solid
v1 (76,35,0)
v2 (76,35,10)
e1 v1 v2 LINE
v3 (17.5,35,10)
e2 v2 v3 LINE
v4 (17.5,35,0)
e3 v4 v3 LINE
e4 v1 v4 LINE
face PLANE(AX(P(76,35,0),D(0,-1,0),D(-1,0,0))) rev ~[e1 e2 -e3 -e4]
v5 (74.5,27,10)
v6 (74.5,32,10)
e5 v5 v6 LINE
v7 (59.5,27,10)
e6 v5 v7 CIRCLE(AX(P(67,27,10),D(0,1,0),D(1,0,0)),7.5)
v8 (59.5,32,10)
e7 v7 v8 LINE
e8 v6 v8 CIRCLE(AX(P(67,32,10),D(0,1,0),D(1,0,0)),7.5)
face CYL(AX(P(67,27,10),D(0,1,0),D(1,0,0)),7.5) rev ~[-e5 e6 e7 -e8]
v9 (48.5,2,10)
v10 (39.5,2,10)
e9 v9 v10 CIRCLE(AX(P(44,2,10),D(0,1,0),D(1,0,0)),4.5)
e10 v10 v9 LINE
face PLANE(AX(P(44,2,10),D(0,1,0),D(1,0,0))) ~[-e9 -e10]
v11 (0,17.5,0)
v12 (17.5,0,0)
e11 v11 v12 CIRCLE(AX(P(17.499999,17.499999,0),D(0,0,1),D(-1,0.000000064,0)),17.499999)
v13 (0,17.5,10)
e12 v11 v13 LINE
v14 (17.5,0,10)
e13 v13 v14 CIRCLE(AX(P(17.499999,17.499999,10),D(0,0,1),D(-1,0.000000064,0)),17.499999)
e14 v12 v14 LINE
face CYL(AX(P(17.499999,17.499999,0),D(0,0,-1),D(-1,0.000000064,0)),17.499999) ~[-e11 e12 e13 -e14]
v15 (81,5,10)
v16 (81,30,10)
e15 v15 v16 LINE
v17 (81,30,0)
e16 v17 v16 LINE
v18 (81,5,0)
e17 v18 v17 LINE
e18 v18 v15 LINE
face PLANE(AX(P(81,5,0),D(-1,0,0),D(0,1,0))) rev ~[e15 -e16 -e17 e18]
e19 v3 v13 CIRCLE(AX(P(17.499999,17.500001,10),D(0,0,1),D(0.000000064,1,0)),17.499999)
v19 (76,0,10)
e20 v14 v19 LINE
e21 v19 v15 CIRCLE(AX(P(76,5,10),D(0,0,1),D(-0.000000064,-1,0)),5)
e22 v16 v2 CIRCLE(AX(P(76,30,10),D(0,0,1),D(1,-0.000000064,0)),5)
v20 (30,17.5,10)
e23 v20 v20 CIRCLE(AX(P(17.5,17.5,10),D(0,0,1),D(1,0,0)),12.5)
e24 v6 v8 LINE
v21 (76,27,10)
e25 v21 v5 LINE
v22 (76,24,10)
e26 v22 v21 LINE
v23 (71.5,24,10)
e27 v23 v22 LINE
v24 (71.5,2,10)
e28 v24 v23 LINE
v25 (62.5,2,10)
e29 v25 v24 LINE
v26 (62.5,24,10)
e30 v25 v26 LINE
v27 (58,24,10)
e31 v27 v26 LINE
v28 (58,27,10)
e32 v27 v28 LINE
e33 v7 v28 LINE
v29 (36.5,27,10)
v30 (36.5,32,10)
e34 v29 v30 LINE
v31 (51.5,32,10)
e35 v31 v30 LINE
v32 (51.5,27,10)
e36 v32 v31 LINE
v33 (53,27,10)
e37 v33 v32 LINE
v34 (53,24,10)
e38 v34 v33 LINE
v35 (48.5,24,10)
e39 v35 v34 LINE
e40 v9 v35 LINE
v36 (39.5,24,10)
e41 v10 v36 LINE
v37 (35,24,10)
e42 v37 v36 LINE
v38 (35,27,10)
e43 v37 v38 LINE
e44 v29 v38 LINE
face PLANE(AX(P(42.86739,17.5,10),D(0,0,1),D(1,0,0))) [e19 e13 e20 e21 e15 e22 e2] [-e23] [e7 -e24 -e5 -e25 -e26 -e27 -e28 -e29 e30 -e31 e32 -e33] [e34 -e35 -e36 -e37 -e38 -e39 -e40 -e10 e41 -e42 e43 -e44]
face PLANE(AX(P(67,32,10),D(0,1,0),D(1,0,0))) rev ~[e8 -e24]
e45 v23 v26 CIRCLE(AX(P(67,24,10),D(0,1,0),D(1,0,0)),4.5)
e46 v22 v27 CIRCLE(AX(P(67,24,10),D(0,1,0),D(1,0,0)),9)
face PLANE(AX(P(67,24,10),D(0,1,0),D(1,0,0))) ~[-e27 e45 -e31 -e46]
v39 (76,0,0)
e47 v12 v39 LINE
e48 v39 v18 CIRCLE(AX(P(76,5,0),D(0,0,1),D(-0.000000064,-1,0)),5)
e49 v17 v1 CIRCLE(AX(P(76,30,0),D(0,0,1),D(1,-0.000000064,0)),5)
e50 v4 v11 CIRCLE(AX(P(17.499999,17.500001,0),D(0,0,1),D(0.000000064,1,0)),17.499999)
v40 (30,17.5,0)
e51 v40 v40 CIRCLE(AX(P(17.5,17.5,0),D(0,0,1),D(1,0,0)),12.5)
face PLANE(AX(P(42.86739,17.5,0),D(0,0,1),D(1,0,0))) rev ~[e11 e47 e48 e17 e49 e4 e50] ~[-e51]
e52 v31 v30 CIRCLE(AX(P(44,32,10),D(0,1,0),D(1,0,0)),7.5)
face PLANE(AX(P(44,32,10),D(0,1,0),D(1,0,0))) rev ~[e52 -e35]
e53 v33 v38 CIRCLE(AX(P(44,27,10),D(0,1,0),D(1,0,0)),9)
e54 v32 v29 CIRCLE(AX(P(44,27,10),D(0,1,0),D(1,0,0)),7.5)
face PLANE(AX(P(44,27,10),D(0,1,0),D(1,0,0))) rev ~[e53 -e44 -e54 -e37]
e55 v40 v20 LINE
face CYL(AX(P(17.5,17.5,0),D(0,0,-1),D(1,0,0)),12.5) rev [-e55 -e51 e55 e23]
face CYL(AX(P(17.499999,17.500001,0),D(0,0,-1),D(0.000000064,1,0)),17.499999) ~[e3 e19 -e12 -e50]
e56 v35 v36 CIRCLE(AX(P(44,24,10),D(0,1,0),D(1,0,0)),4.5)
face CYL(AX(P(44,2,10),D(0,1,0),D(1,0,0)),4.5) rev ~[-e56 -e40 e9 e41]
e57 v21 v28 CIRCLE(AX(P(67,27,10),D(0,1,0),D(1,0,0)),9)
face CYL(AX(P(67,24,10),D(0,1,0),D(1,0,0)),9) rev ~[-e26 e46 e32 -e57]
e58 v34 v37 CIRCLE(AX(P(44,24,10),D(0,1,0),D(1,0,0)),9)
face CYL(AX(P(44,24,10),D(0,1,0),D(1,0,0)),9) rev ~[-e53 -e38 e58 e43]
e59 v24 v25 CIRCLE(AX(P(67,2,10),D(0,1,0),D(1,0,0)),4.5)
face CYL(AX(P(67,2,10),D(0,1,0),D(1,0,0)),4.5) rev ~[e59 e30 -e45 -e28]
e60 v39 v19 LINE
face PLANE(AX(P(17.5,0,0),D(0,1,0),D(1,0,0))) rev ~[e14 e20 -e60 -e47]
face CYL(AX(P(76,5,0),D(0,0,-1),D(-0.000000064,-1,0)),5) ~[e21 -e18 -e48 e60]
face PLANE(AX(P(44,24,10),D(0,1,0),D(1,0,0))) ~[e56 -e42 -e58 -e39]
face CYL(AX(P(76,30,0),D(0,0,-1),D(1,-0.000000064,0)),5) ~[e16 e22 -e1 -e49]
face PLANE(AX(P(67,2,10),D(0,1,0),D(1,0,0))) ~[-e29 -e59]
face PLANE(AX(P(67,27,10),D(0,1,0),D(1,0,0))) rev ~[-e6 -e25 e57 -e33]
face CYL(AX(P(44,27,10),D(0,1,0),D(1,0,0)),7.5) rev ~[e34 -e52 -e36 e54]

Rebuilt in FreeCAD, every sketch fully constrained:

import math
import FreeCAD as App
import Part
import Sketcher


def add_polygon(sketch, points):
    """Adds a closed chain of lines whose ends are joined by coincident constraints."""
    first, n = sketch.GeometryCount, len(points)
    for a, b in zip(points, points[1:] + points[:1]):
        sketch.addGeometry(Part.LineSegment(App.Vector(*a, 0), App.Vector(*b, 0)), False)
    for i in range(n):
        sketch.addConstraint(Sketcher.Constraint("Coincident", first + i, 2, first + (i + 1) % n, 1))

doc = App.newDocument("Part")
params = doc.addObject("Spreadsheet::Sheet", "Params")
for row, (alias, value) in enumerate([
    ("sketch1_diameter", "25 mm"),
    ("sketch1_radius", "5 mm"),
    ("sketch1_radius2", "17.499999 mm"),
    ("sketch1_width", "58.5 mm"),
    ("pad1_length", "10 mm"),
    ("sketch2_height", "22 mm"),
    ("sketch2_height2", "3 mm"),
    ("sketch2_height3", "5 mm"),
    ("sketch2_width", "4.5 mm"),
    ("sketch2_width2", "1.5 mm"),
    ("groove_angle", "360 deg"),
    ("sketch3_height", "22 mm"),
    ("sketch3_height2", "3 mm"),
    ("sketch3_height3", "5 mm"),
    ("sketch3_width", "4.5 mm"),
    ("sketch3_width2", "1.5 mm"),
    ("groove2_angle", "360 deg"),
], start=1):
    params.set(f"A{row}", alias)
    params.set(f"B{row}", "=" + value)
    params.setAlias(f"B{row}", alias)

body = doc.addObject("PartDesign::Body", "Body")

# Sketch on XY plane
sketch1 = body.newObject("Sketcher::SketchObject", "Sketch")
sketch1.AttachmentSupport = (doc.getObject("XY_Plane"), [""])
sketch1.MapMode = "FlatFace"
sketch1.addGeometry([
    Part.ArcOfCircle(Part.Circle(App.Vector(17.5, 17.5, 0), App.Vector(0, 0, 1), 17.5), math.radians(180), math.radians(270)),  # 0
    Part.LineSegment(App.Vector(17.5, 0, 0), App.Vector(76, 0, 0)),  # 1
    Part.ArcOfCircle(Part.Circle(App.Vector(76, 5, 0), App.Vector(0, 0, 1), 5), math.radians(-90), math.radians(0)),  # 2
    Part.LineSegment(App.Vector(81, 5, 0), App.Vector(81, 30, 0)),  # 3
    Part.ArcOfCircle(Part.Circle(App.Vector(76, 30, 0), App.Vector(0, 0, 1), 5), math.radians(0), math.radians(90)),  # 4
    Part.LineSegment(App.Vector(76, 35, 0), App.Vector(17.5, 35, 0)),  # 5
    Part.ArcOfCircle(Part.Circle(App.Vector(17.5, 17.5, 0), App.Vector(0, 0, 1), 17.5), math.radians(90), math.radians(180)),  # 6
    Part.Circle(App.Vector(17.5, 17.5, 0), App.Vector(0, 0, 1), 12.5),  # 7
], False)
sketch1.addConstraint([
    Sketcher.Constraint("Tangent", 0, 2, 1, 1),
    Sketcher.Constraint("Tangent", 1, 2, 2, 1),
    Sketcher.Constraint("Tangent", 2, 2, 3, 1),
    Sketcher.Constraint("Tangent", 3, 2, 4, 1),
    Sketcher.Constraint("Tangent", 4, 2, 5, 1),
    Sketcher.Constraint("Tangent", 5, 2, 6, 1),
    Sketcher.Constraint("Tangent", 6, 2, 0, 1),
    Sketcher.Constraint("Horizontal", 1),
    Sketcher.Constraint("Vertical", 3),
    Sketcher.Constraint("Horizontal", 5),
    Sketcher.Constraint("Coincident", 7, 3, 0, 3),
    Sketcher.Constraint("Equal", 2, 4),
    Sketcher.Constraint("Equal", 0, 6),
    Sketcher.Constraint("PointOnObject", 0, 2, -1),
    Sketcher.Constraint("PointOnObject", 6, 2, -2),
    Sketcher.Constraint("Horizontal", 7, 3, 6, 2),
    Sketcher.Constraint("Diameter", 7, 25.0),
    Sketcher.Constraint("Radius", 2, 5.0),
    Sketcher.Constraint("Radius", 0, 17.499999),
    Sketcher.Constraint("DistanceX", 1, 1, 1, 2, 58.5),
])
sketch1.setExpression("Constraints[16]", "Params.sketch1_diameter")
sketch1.setExpression("Constraints[17]", "Params.sketch1_radius")
sketch1.setExpression("Constraints[18]", "Params.sketch1_radius2")
sketch1.setExpression("Constraints[19]", "Params.sketch1_width")
pad1 = body.newObject("PartDesign::Pad", "Pad")
pad1.Profile = sketch1
pad1.setExpression("Length", "Params.pad1_length")

# Sketch on XY plane
sketch2 = body.newObject("Sketcher::SketchObject", "Sketch001")
sketch2.AttachmentSupport = (doc.getObject("XY_Plane"), [""])
sketch2.MapMode = "FlatFace"
sketch2.AttachmentOffset = App.Placement(App.Vector(0, 0, 10), App.Rotation())
add_polygon(sketch2, [(44, 2), (48.5, 2), (48.5, 24), (53, 24), (53, 27), (51.5, 27), (51.5, 32), (44, 32)])  # lines 0-7
sketch2.addGeometry(Part.LineSegment(App.Vector(44, 2, 0), App.Vector(44, 32, 0)), True)  # axis
sketch2.addConstraint([
    Sketcher.Constraint("Horizontal", 0),
    Sketcher.Constraint("Vertical", 1),
    Sketcher.Constraint("Horizontal", 2),
    Sketcher.Constraint("Vertical", 3),
    Sketcher.Constraint("Horizontal", 4),
    Sketcher.Constraint("Vertical", 5),
    Sketcher.Constraint("Horizontal", 6),
    Sketcher.Constraint("Vertical", 7),
    Sketcher.Constraint("Vertical", 8),
    Sketcher.Constraint("Coincident", 8, 1, 7, 2),
    Sketcher.Constraint("Horizontal", 5, 2, 8, 2),
    Sketcher.Constraint("Equal", 0, 2),
    Sketcher.Constraint("DistanceY", 1, 1, 1, 2, 22.0),
    Sketcher.Constraint("DistanceY", 3, 1, 3, 2, 3.0),
    Sketcher.Constraint("DistanceY", 5, 1, 5, 2, 5.0),
    Sketcher.Constraint("DistanceX", 0, 1, 0, 2, 4.5),
    Sketcher.Constraint("DistanceX", 4, 2, 4, 1, 1.5),
    Sketcher.Constraint("DistanceY", -1, 1, 0, 2, 2.0),
    Sketcher.Constraint("DistanceX", -1, 1, 2, 2, 53.0),
])
sketch2.setExpression("Constraints[20]", "Params.sketch2_height")
sketch2.setExpression("Constraints[21]", "Params.sketch2_height2")
sketch2.setExpression("Constraints[22]", "Params.sketch2_height3")
sketch2.setExpression("Constraints[23]", "Params.sketch2_width")
sketch2.setExpression("Constraints[24]", "Params.sketch2_width2")
groove = body.newObject("PartDesign::Groove", "Groove")
groove.Profile = sketch2
groove.ReferenceAxis = (sketch2, ["Axis0"])
groove.setExpression("Angle", "Params.groove_angle")

# Sketch on XY plane
sketch3 = body.newObject("Sketcher::SketchObject", "Sketch002")
sketch3.AttachmentSupport = (doc.getObject("XY_Plane"), [""])
sketch3.MapMode = "FlatFace"
sketch3.AttachmentOffset = App.Placement(App.Vector(0, 0, 10), App.Rotation())
add_polygon(sketch3, [(67, 2), (71.5, 2), (71.5, 24), (76, 24), (76, 27), (74.5, 27), (74.5, 32), (67, 32)])  # lines 0-7
sketch3.addGeometry(Part.LineSegment(App.Vector(67, 2, 0), App.Vector(67, 32, 0)), True)  # axis
sketch3.addConstraint([
    Sketcher.Constraint("Horizontal", 0),
    Sketcher.Constraint("Vertical", 1),
    Sketcher.Constraint("Horizontal", 2),
    Sketcher.Constraint("Vertical", 3),
    Sketcher.Constraint("Horizontal", 4),
    Sketcher.Constraint("Vertical", 5),
    Sketcher.Constraint("Horizontal", 6),
    Sketcher.Constraint("Vertical", 7),
    Sketcher.Constraint("Vertical", 8),
    Sketcher.Constraint("Coincident", 8, 1, 7, 2),
    Sketcher.Constraint("Horizontal", 5, 2, 8, 2),
    Sketcher.Constraint("Equal", 0, 2),
    Sketcher.Constraint("DistanceY", 1, 1, 1, 2, 22.0),
    Sketcher.Constraint("DistanceY", 3, 1, 3, 2, 3.0),
    Sketcher.Constraint("DistanceY", 5, 1, 5, 2, 5.0),
    Sketcher.Constraint("DistanceX", 0, 1, 0, 2, 4.5),
    Sketcher.Constraint("DistanceX", 4, 2, 4, 1, 1.5),
    Sketcher.Constraint("DistanceY", -1, 1, 0, 2, 2.0),
    Sketcher.Constraint("DistanceX", -1, 1, 2, 2, 76.0),
])
sketch3.setExpression("Constraints[20]", "Params.sketch3_height")
sketch3.setExpression("Constraints[21]", "Params.sketch3_height2")
sketch3.setExpression("Constraints[22]", "Params.sketch3_height3")
sketch3.setExpression("Constraints[23]", "Params.sketch3_width")
sketch3.setExpression("Constraints[24]", "Params.sketch3_width2")
groove2 = body.newObject("PartDesign::Groove", "Groove001")
groove2.Profile = sketch3
groove2.ReferenceAxis = (sketch3, ["Axis0"])
groove2.setExpression("Angle", "Params.groove2_angle")

doc.recompute()
